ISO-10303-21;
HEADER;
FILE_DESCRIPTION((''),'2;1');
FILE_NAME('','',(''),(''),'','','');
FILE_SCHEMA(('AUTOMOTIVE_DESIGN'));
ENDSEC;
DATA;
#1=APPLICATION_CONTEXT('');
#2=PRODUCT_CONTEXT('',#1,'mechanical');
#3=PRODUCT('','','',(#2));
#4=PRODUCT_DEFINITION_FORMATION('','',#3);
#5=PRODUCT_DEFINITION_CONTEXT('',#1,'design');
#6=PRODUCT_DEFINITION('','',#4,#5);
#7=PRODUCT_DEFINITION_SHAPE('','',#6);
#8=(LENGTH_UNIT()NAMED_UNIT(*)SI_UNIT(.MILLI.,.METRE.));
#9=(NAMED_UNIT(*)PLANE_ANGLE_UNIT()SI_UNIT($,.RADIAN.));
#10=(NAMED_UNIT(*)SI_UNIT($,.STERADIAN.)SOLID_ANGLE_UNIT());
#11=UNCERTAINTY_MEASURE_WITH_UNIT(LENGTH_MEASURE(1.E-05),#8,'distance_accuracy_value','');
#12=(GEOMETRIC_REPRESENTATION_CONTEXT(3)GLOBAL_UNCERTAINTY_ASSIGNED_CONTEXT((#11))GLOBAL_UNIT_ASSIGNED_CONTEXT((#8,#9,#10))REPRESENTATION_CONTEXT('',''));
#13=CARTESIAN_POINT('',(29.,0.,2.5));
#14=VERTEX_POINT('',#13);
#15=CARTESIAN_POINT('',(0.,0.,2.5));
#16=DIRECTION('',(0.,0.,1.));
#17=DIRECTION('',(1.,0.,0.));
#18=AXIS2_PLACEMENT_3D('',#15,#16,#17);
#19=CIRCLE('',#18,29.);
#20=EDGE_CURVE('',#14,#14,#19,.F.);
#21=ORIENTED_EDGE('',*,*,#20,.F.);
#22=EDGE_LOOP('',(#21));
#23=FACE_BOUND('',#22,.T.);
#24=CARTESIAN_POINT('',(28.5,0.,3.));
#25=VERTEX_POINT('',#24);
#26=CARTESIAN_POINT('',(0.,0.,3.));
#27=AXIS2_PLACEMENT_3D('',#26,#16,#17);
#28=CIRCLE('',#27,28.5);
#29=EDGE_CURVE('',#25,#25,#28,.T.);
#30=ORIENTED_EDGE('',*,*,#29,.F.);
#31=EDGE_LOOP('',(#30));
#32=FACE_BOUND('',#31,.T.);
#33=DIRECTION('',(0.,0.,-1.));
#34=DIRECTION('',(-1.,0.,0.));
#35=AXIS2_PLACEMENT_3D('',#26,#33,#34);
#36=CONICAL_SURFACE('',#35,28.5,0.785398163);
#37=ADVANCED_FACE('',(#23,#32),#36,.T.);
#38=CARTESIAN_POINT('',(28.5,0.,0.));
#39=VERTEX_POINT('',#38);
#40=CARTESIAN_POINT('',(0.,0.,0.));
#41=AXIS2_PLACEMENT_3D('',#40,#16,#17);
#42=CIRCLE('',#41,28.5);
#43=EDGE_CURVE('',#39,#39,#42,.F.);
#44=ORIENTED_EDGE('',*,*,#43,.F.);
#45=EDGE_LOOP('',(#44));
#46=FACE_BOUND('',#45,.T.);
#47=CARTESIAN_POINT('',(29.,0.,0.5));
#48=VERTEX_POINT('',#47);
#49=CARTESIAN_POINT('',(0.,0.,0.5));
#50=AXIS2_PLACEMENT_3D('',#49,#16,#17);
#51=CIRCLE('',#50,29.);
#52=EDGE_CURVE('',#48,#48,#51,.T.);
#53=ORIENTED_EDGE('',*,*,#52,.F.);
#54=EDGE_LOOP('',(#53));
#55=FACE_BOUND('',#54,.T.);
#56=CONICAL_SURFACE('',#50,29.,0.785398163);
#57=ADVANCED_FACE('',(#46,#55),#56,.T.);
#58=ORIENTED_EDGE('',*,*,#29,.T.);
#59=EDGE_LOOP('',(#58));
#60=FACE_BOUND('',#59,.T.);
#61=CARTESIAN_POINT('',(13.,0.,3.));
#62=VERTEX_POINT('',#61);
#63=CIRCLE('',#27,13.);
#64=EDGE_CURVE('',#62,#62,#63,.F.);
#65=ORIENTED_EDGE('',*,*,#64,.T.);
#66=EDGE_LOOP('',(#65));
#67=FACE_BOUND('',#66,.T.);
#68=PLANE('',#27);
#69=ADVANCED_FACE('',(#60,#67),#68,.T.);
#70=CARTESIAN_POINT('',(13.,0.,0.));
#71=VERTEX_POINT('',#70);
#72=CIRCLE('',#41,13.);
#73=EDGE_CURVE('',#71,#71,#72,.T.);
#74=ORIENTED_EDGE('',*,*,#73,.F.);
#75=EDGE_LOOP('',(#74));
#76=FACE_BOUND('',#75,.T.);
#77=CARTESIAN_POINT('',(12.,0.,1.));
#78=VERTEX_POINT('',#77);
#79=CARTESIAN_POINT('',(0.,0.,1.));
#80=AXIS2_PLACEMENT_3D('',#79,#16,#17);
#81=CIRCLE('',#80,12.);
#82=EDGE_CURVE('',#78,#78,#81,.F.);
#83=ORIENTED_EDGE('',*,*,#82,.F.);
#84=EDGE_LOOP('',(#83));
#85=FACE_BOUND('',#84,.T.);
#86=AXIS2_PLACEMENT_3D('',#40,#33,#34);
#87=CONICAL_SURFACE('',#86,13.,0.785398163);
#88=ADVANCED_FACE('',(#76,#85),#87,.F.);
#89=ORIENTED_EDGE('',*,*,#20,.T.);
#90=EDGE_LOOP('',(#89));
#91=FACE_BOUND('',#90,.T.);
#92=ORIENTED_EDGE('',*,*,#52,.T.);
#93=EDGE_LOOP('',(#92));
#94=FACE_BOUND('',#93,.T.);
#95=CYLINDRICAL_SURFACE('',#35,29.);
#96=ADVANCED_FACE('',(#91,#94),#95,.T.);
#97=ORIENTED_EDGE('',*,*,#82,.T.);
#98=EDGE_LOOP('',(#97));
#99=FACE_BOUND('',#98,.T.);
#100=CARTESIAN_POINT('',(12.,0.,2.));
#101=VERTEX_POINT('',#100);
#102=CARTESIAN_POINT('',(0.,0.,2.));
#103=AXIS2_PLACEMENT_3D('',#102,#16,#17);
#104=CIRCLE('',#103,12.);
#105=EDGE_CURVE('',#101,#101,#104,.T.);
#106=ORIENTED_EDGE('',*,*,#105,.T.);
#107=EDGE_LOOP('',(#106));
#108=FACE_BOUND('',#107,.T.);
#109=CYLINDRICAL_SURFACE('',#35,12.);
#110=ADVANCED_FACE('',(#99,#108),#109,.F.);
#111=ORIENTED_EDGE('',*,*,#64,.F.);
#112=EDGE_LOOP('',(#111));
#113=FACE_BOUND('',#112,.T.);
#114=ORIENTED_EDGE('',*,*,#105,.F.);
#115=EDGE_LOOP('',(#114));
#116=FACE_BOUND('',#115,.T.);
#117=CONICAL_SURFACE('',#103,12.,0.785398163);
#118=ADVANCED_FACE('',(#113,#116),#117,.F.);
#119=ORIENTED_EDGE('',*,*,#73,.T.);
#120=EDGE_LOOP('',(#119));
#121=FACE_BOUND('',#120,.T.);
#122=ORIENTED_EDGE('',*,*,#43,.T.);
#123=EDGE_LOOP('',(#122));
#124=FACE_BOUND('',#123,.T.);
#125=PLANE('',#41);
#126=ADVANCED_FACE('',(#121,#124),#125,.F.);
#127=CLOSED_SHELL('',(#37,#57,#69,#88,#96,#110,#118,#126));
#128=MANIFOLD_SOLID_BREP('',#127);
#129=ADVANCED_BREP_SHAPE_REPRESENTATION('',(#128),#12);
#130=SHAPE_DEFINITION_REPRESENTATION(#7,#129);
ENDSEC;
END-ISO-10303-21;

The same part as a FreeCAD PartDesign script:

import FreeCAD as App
import Part
import Sketcher
Q = App.Units.Quantity


def edges_at(feature, points):
    """Names of the edges that pass closest to the given points."""
    edges = feature.Shape.Edges
    near = lambda p: min(range(len(edges)), key=lambda i: edges[i].distToShape(Part.Vertex(*p))[0])
    return sorted({f"Edge{near(p) + 1}" for p in points})

doc = App.newDocument("Part")
body = doc.addObject("PartDesign::Body", "Body")

sketch1 = doc.addObject("Sketcher::SketchObject", "Sketch")
body.addObject(sketch1)
sketch1.AttachmentSupport = (doc.XY_Plane, [""])
sketch1.MapMode = "FlatFace"
sketch1.addGeometry([
    Part.Circle(App.Vector(0, 0, 0), App.Vector(0, 0, 1), 29),
    Part.Circle(App.Vector(0, 0, 0), App.Vector(0, 0, 1), 12),
], False)
sketch1.addConstraint([
    Sketcher.Constraint("Coincident", 0, 3, -1, 1),
    Sketcher.Constraint("Coincident", 1, 3, -1, 1),
    Sketcher.Constraint("Diameter", 0, Q("58 mm")),
    Sketcher.Constraint("Diameter", 1, Q("24 mm")),
])
pad1 = doc.addObject("PartDesign::Pad", "Pad")
body.addObject(pad1)
pad1.Profile = sketch1
pad1.Length = 3
doc.recompute()

chamfer = doc.addObject("PartDesign::Chamfer", "Chamfer")
body.addObject(chamfer)
chamfer.Base = (pad1, edges_at(pad1, [(-12, 0, 0), (-12, 0, 3)]))
chamfer.Size = 1
doc.recompute()

chamfer2 = doc.addObject("PartDesign::Chamfer", "Chamfer001")
body.addObject(chamfer2)
chamfer2.Base = (chamfer, edges_at(chamfer, [(-29, 0, 0), (-29, 0, 3)]))
chamfer2.Size = 0.5

doc.recompute()
